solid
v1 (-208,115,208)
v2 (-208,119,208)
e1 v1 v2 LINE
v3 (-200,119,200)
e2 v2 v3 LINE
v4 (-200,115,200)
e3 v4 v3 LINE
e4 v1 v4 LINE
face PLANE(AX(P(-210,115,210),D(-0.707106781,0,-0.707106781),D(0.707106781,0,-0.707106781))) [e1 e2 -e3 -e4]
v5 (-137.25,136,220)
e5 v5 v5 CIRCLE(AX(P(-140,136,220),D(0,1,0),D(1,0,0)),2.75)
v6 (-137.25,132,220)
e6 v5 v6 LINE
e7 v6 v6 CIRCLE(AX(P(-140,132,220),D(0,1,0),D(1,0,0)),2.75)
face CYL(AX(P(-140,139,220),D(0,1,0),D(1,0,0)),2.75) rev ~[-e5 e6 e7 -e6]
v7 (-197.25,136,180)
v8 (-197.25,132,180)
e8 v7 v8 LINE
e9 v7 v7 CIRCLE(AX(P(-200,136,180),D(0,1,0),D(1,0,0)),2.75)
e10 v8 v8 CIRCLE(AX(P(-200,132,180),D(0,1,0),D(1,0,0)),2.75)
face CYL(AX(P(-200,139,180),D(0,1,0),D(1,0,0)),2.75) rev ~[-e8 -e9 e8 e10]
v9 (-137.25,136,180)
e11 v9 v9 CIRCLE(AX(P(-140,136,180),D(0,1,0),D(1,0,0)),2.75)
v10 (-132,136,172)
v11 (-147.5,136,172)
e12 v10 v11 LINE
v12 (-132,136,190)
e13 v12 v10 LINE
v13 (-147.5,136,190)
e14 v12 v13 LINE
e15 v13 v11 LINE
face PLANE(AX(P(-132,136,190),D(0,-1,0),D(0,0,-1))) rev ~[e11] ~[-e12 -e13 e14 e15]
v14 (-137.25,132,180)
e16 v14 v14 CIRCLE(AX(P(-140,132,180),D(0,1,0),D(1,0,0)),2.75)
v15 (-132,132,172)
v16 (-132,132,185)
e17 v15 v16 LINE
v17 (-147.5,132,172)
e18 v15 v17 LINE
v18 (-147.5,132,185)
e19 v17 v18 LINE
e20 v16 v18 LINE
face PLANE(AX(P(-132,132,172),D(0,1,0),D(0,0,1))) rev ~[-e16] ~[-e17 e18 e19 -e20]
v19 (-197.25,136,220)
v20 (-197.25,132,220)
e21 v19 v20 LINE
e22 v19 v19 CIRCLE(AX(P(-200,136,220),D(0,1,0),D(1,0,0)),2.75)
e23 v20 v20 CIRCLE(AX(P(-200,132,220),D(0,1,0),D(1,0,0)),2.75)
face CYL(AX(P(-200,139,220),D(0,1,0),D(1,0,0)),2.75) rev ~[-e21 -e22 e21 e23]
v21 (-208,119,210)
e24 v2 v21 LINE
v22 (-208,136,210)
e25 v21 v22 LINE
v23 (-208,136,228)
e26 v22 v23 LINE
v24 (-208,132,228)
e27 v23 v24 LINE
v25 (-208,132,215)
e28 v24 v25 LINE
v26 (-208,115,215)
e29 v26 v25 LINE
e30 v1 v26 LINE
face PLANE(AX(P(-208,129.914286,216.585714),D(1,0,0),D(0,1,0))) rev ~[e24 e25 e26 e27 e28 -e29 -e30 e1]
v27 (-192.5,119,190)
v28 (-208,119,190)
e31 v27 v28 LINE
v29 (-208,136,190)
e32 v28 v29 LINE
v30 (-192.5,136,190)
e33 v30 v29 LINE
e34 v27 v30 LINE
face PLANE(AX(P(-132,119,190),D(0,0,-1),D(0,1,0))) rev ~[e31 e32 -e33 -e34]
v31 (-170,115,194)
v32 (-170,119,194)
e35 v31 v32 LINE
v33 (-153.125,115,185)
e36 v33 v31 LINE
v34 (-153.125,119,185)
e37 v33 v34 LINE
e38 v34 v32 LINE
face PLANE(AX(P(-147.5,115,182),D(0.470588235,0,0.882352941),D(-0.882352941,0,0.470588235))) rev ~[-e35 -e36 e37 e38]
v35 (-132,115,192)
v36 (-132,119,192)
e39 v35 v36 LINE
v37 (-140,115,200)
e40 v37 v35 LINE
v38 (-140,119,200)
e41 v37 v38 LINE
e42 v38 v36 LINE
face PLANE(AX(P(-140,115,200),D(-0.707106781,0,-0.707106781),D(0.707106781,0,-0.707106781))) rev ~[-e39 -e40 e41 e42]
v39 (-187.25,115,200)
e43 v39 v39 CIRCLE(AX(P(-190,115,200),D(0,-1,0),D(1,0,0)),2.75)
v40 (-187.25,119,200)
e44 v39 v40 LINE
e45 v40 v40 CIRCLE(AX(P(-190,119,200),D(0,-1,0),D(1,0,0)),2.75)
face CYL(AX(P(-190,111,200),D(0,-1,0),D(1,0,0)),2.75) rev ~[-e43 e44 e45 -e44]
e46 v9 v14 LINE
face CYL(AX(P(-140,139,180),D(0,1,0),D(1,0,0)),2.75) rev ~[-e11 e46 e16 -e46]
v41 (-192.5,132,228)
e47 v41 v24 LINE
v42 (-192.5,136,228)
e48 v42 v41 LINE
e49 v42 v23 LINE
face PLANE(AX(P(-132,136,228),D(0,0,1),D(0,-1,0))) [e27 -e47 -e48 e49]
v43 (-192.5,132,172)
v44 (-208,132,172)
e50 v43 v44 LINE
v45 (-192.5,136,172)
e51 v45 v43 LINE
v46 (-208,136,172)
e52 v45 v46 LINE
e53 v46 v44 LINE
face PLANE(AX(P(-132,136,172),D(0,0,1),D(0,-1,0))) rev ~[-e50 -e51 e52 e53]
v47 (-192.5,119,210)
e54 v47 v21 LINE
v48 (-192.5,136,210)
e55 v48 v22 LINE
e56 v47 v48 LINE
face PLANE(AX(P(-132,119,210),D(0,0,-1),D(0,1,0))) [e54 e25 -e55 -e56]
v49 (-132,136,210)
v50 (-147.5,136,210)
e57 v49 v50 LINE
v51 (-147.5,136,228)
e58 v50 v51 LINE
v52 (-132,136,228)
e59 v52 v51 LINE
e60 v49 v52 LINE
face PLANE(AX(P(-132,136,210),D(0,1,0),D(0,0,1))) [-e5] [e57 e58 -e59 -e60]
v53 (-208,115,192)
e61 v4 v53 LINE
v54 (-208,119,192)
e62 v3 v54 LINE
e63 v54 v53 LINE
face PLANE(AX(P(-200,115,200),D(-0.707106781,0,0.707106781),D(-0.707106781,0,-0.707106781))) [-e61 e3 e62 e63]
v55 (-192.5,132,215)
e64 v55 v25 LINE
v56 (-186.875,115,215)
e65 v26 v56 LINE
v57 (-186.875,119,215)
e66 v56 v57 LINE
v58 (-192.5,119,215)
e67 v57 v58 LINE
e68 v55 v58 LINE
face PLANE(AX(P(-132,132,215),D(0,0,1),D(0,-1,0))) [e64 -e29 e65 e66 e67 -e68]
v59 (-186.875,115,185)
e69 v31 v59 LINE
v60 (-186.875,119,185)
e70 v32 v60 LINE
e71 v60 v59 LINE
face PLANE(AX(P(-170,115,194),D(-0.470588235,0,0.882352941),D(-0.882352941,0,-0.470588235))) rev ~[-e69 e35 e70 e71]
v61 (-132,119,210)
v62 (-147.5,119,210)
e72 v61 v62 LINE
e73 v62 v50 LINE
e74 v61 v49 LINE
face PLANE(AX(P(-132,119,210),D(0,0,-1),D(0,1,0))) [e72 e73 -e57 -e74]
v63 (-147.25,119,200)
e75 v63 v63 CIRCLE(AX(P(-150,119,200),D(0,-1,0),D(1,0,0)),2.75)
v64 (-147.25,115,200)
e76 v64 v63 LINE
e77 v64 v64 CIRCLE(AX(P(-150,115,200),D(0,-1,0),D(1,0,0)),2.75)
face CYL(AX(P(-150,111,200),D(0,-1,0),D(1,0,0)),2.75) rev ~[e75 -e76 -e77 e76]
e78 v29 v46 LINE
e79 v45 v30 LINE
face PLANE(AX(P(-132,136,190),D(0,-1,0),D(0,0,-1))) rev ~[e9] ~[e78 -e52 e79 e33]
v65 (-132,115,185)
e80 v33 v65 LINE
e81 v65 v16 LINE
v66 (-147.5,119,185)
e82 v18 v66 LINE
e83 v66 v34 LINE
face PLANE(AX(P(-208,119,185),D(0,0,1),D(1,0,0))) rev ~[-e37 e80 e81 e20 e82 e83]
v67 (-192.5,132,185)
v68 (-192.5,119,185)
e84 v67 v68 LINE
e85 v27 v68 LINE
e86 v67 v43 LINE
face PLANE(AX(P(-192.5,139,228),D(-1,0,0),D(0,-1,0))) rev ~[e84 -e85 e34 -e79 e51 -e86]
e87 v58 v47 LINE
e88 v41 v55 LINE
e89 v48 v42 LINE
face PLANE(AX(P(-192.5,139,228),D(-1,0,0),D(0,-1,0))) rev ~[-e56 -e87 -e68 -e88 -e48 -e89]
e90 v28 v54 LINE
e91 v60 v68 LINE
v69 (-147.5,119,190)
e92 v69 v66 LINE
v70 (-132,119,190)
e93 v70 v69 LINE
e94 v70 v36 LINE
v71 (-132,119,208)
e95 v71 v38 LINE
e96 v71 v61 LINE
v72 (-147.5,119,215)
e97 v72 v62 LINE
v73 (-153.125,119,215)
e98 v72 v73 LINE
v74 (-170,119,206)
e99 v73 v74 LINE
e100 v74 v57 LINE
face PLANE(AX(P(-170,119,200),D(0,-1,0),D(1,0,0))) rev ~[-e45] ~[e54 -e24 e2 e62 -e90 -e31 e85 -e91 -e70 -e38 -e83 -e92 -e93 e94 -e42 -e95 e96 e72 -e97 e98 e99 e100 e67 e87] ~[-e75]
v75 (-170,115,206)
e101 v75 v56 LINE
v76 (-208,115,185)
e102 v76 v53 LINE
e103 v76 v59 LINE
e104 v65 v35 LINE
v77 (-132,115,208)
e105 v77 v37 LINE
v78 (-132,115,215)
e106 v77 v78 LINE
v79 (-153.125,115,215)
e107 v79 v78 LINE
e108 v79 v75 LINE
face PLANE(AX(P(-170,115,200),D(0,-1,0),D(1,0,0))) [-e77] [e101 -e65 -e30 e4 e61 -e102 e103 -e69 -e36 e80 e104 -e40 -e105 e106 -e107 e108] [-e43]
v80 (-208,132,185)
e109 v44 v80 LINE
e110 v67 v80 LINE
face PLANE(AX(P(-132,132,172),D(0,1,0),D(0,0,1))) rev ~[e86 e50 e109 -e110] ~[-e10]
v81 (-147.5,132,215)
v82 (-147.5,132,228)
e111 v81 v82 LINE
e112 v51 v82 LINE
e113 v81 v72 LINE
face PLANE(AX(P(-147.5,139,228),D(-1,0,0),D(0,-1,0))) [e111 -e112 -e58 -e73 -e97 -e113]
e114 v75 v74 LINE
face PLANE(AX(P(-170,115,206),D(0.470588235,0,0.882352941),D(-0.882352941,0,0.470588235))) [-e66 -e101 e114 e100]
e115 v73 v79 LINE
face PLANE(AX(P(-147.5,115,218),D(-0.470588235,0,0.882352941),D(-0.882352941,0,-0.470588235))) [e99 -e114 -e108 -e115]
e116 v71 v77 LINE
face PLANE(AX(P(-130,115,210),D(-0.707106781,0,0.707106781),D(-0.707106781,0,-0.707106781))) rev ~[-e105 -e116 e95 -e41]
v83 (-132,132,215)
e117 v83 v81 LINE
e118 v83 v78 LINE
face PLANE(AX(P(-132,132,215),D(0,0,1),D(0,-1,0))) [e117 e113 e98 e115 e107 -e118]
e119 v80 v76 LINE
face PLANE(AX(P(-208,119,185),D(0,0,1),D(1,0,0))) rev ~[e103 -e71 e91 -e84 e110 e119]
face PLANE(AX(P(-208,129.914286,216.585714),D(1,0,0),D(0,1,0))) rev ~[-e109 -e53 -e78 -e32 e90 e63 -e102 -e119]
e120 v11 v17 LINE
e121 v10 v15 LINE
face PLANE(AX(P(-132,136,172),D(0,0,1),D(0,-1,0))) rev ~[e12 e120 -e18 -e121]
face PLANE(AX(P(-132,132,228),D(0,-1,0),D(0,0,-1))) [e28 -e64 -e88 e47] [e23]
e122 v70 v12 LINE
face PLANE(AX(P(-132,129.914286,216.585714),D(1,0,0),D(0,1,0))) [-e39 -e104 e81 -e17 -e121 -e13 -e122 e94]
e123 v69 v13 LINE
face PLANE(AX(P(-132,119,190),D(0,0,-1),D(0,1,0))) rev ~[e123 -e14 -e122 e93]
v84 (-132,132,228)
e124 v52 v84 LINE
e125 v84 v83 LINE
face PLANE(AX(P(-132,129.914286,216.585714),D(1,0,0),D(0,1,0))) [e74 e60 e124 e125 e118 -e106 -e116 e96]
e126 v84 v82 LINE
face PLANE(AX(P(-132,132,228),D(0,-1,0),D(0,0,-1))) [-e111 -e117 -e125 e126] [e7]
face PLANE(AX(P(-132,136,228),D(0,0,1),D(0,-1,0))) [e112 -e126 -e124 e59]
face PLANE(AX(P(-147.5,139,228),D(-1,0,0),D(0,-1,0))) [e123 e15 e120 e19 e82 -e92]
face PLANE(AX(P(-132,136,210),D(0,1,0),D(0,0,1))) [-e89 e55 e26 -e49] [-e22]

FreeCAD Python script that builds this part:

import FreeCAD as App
import Part
import Sketcher
from FreeCAD import Vector
Q = App.Units.Quantity

doc = App.newDocument("Part")
body = doc.addObject("PartDesign::Body", "Body")

sketch1 = doc.addObject("Sketcher::SketchObject", "Sketch")
body.addObject(sketch1)
sketch1.AttachmentSupport = (doc.XZ_Plane, [""])
sketch1.MapMode = "FlatFace"
sketch1.addGeometry(Part.LineSegment(Vector(-208, 215, 0), Vector(-208, 185, 0)), False)
sketch1.addGeometry(Part.LineSegment(Vector(-208, 185, 0), Vector(-132, 185, 0)), False)
sketch1.addGeometry(Part.LineSegment(Vector(-132, 185, 0), Vector(-132, 215, 0)), False)
sketch1.addGeometry(Part.LineSegment(Vector(-132, 215, 0), Vector(-208, 215, 0)), False)
sketch1.addConstraint(Sketcher.Constraint("Coincident", 0, 2, 1, 1))
sketch1.addConstraint(Sketcher.Constraint("Coincident", 1, 2, 2, 1))
sketch1.addConstraint(Sketcher.Constraint("Coincident", 2, 2, 3, 1))
sketch1.addConstraint(Sketcher.Constraint("Coincident", 3, 2, 0, 1))
sketch1.addConstraint(Sketcher.Constraint("Vertical", 0))
sketch1.addConstraint(Sketcher.Constraint("Horizontal", 1))
sketch1.addConstraint(Sketcher.Constraint("Vertical", 2))
sketch1.addConstraint(Sketcher.Constraint("Horizontal", 3))
sketch1.addConstraint(Sketcher.Constraint("DistanceX", 1, 1, 1, 2, Q("76 mm")))
sketch1.addConstraint(Sketcher.Constraint("DistanceY", 0, 2, 0, 1, Q("30 mm")))
sketch1.addConstraint(Sketcher.Constraint("DistanceX", 0, 2, -1, 1, Q("208 mm")))
sketch1.addConstraint(Sketcher.Constraint("DistanceY", -1, 1, 0, 2, Q("185 mm")))
pad1 = doc.addObject("PartDesign::Pad", "Pad")
body.addObject(pad1)
pad1.Profile = sketch1
pad1.Length = 4

sketch2 = doc.addObject("Sketcher::SketchObject", "Sketch001")
body.addObject(sketch2)
sketch2.AttachmentSupport = (doc.YZ_Plane, [""])
sketch2.MapMode = "FlatFace"
sketch2.AttachmentOffset = App.Placement(Vector(0, 0, -132), App.Rotation())
sketch2.addGeometry(Part.LineSegment(Vector(0, 215, 0), Vector(0, 210, 0)), False)
sketch2.addGeometry(Part.LineSegment(Vector(0, 210, 0), Vector(17, 210, 0)), False)
sketch2.addGeometry(Part.LineSegment(Vector(17, 210, 0), Vector(17, 228, 0)), False)
sketch2.addGeometry(Part.LineSegment(Vector(17, 228, 0), Vector(13, 228, 0)), False)
sketch2.addGeometry(Part.LineSegment(Vector(13, 228, 0), Vector(13, 215, 0)), False)
sketch2.addGeometry(Part.LineSegment(Vector(13, 215, 0), Vector(0, 215, 0)), False)
sketch2.addGeometry(Part.LineSegment(Vector(17, 190, 0), Vector(0, 190, 0)), False)
sketch2.addGeometry(Part.LineSegment(Vector(0, 190, 0), Vector(0, 185, 0)), False)
sketch2.addGeometry(Part.LineSegment(Vector(0, 185, 0), Vector(13, 185, 0)), False)
sketch2.addGeometry(Part.LineSegment(Vector(13, 185, 0), Vector(13, 172, 0)), False)
sketch2.addGeometry(Part.LineSegment(Vector(13, 172, 0), Vector(17, 172, 0)), False)
sketch2.addGeometry(Part.LineSegment(Vector(17, 172, 0), Vector(17, 190, 0)), False)
sketch2.addConstraint(Sketcher.Constraint("Coincident", 0, 2, 1, 1))
sketch2.addConstraint(Sketcher.Constraint("Coincident", 1, 2, 2, 1))
sketch2.addConstraint(Sketcher.Constraint("Coincident", 2, 2, 3, 1))
sketch2.addConstraint(Sketcher.Constraint("Coincident", 3, 2, 4, 1))
sketch2.addConstraint(Sketcher.Constraint("Coincident", 4, 2, 5, 1))
sketch2.addConstraint(Sketcher.Constraint("Coincident", 5, 2, 0, 1))
sketch2.addConstraint(Sketcher.Constraint("Coincident", 6, 2, 7, 1))
sketch2.addConstraint(Sketcher.Constraint("Coincident", 7, 2, 8, 1))
sketch2.addConstraint(Sketcher.Constraint("Coincident", 8, 2, 9, 1))
sketch2.addConstraint(Sketcher.Constraint("Coincident", 9, 2, 10, 1))
sketch2.addConstraint(Sketcher.Constraint("Coincident", 10, 2, 11, 1))
sketch2.addConstraint(Sketcher.Constraint("Coincident", 11, 2, 6, 1))
sketch2.addConstraint(Sketcher.Constraint("Vertical", 0))
sketch2.addConstraint(Sketcher.Constraint("Horizontal", 1))
sketch2.addConstraint(Sketcher.Constraint("Vertical", 2))
sketch2.addConstraint(Sketcher.Constraint("Horizontal", 3))
sketch2.addConstraint(Sketcher.Constraint("Vertical", 4))
sketch2.addConstraint(Sketcher.Constraint("Horizontal", 5))
sketch2.addConstraint(Sketcher.Constraint("Horizontal", 6))
sketch2.addConstraint(Sketcher.Constraint("Vertical", 7))
sketch2.addConstraint(Sketcher.Constraint("Horizontal", 8))
sketch2.addConstraint(Sketcher.Constraint("Vertical", 9))
sketch2.addConstraint(Sketcher.Constraint("Horizontal", 10))
sketch2.addConstraint(Sketcher.Constraint("Vertical", 11))
sketch2.addConstraint(Sketcher.Constraint("PointOnObject", 0, 2, -2))
sketch2.addConstraint(Sketcher.Constraint("PointOnObject", 6, 2, -2))
sketch2.addConstraint(Sketcher.Constraint("Vertical", 4, 2, 8, 2))
sketch2.addConstraint(Sketcher.Constraint("Vertical", 2, 2, 10, 2))
sketch2.addConstraint(Sketcher.Constraint("Equal", 8, 4))
sketch2.addConstraint(Sketcher.Constraint("Equal", 0, 7))
sketch2.addConstraint(Sketcher.Constraint("Equal", 4, 9))
sketch2.addConstraint(Sketcher.Constraint("DistanceX", 1, 1, 1, 2, Q("17 mm")))
sketch2.addConstraint(Sketcher.Constraint("DistanceX", 3, 2, 3, 1, Q("4 mm")))
sketch2.addConstraint(Sketcher.Constraint("DistanceY", 0, 2, 0, 1, Q("5 mm")))
sketch2.addConstraint(Sketcher.Constraint("DistanceY", -1, 1, 0, 2, Q("210 mm")))
sketch2.addConstraint(Sketcher.Constraint("DistanceY", -1, 1, 6, 2, Q("190 mm")))
pad2 = doc.addObject("PartDesign::Pad", "Pad001")
body.addObject(pad2)
pad2.Profile = sketch2
pad2.Length = 76
pad2.Reversed = True

sketch3 = doc.addObject("Sketcher::SketchObject", "Sketch002")
body.addObject(sketch3)
sketch3.AttachmentSupport = (doc.XZ_Plane, [""])
sketch3.MapMode = "FlatFace"
sketch3.AttachmentOffset = App.Placement(Vector(0, 0, -20), App.Rotation())
sketch3.addGeometry(Part.Circle(Vector(-200, 220, 0), Vector(0, 0, 1), 2.8), False)
sketch3.addGeometry(Part.Circle(Vector(-200, 180, 0), Vector(0, 0, 1), 2.8), False)
sketch3.addGeometry(Part.Circle(Vector(-140, 180, 0), Vector(0, 0, 1), 2.8), False)
sketch3.addGeometry(Part.Circle(Vector(-140, 220, 0), Vector(0, 0, 1), 2.8), False)
sketch3.addConstraint(Sketcher.Constraint("Equal", 0, 1))
sketch3.addConstraint(Sketcher.Constraint("Equal", 1, 2))
sketch3.addConstraint(Sketcher.Constraint("Equal", 2, 3))
sketch3.addConstraint(Sketcher.Constraint("Horizontal", 1, 3, 2, 3))
sketch3.addConstraint(Sketcher.Constraint("Horizontal", 0, 3, 3, 3))
sketch3.addConstraint(Sketcher.Constraint("Vertical", 0, 3, 1, 3))
sketch3.addConstraint(Sketcher.Constraint("Vertical", 2, 3, 3, 3))
sketch3.addConstraint(Sketcher.Constraint("Diameter", 0, Q("5.5 mm")))
sketch3.addConstraint(Sketcher.Constraint("DistanceX", 0, 3, -1, 1, Q("200 mm")))
sketch3.addConstraint(Sketcher.Constraint("DistanceY", -1, 1, 0, 3, Q("220 mm")))
sketch3.addConstraint(Sketcher.Constraint("DistanceY", -1, 1, 1, 3, Q("180 mm")))
sketch3.addConstraint(Sketcher.Constraint("DistanceX", 2, 3, -1, 1, Q("140 mm")))
pocket1 = doc.addObject("PartDesign::Pocket", "Pocket")
body.addObject(pocket1)
pocket1.Profile = sketch3
pocket1.Type = "ThroughAll"
pocket1.Reversed = True

sketch4 = doc.addObject("Sketcher::SketchObject", "Sketch003")
body.addObject(sketch4)
sketch4.AttachmentSupport = (doc.XZ_Plane, [""])
sketch4.MapMode = "FlatFace"
sketch4.AttachmentOffset = App.Placement(Vector(0, 0, 8), App.Rotation())
sketch4.addGeometry(Part.Circle(Vector(-190, 200, 0), Vector(0, 0, 1), 2.8), False)
sketch4.addGeometry(Part.Circle(Vector(-150, 200, 0), Vector(0, 0, 1), 2.8), False)
sketch4.addConstraint(Sketcher.Constraint("Equal", 0, 1))
sketch4.addConstraint(Sketcher.Constraint("Horizontal", 0, 3, 1, 3))
sketch4.addConstraint(Sketcher.Constraint("Diameter", 0, Q("5.5 mm")))
sketch4.addConstraint(Sketcher.Constraint("DistanceX", 0, 3, -1, 1, Q("190 mm")))
sketch4.addConstraint(Sketcher.Constraint("DistanceY", -1, 1, 0, 3, Q("200 mm")))
sketch4.addConstraint(Sketcher.Constraint("DistanceX", 1, 3, -1, 1, Q("150 mm")))
pocket2 = doc.addObject("PartDesign::Pocket", "Pocket001")
body.addObject(pocket2)
pocket2.Profile = sketch4
pocket2.Type = "ThroughAll"

sketch5 = doc.addObject("Sketcher::SketchObject", "Sketch004")
body.addObject(sketch5)
sketch5.AttachmentSupport = (doc.XY_Plane, [""])
sketch5.MapMode = "FlatFace"
sketch5.AttachmentOffset = App.Placement(Vector(0, 0, 228), App.Rotation())
sketch5.addGeometry(Part.LineSegment(Vector(-148, 0, 0), Vector(-148, 20, 0)), False)
sketch5.addGeometry(Part.LineSegment(Vector(-148, 20, 0), Vector(-192, 20, 0)), False)
sketch5.addGeometry(Part.LineSegment(Vector(-192, 20, 0), Vector(-192, 0, 0)), False)
sketch5.addGeometry(Part.LineSegment(Vector(-192, 0, 0), Vector(-148, 0, 0)), False)
sketch5.addConstraint(Sketcher.Constraint("Coincident", 0, 2, 1, 1))
sketch5.addConstraint(Sketcher.Constraint("Coincident", 1, 2, 2, 1))
sketch5.addConstraint(Sketcher.Constraint("Coincident", 2, 2, 3, 1))
sketch5.addConstraint(Sketcher.Constraint("Coincident", 3, 2, 0, 1))
sketch5.addConstraint(Sketcher.Constraint("Vertical", 0))
sketch5.addConstraint(Sketcher.Constraint("Horizontal", 1))
sketch5.addConstraint(Sketcher.Constraint("Vertical", 2))
sketch5.addConstraint(Sketcher.Constraint("Horizontal", 3))
sketch5.addConstraint(Sketcher.Constraint("PointOnObject", 2, 2, -1))
sketch5.addConstraint(Sketcher.Constraint("DistanceX", 1, 2, 1, 1, Q("45 mm")))
sketch5.addConstraint(Sketcher.Constraint("DistanceY", 0, 1, 0, 2, Q("20 mm")))
sketch5.addConstraint(Sketcher.Constraint("DistanceX", 0, 2, -1, 1, Q("147.5 mm")))
pocket3 = doc.addObject("PartDesign::Pocket", "Pocket002")
body.addObject(pocket3)
pocket3.Profile = sketch5
pocket3.Type = "ThroughAll"

sketch6 = doc.addObject("Sketcher::SketchObject", "Sketch005")
body.addObject(sketch6)
sketch6.AttachmentSupport = (doc.XZ_Plane, [""])
sketch6.MapMode = "FlatFace"
sketch6.AttachmentOffset = App.Placement(Vector(0, 0, 4), App.Rotation())
sketch6.addGeometry(Part.LineSegment(Vector(-200, 200, 0), Vector(-210, 210, 0)), False)
sketch6.addGeometry(Part.LineSegment(Vector(-210, 210, 0), Vector(-210, 190, 0)), False)
sketch6.addGeometry(Part.LineSegment(Vector(-210, 190, 0), Vector(-200, 200, 0)), False)
sketch6.addGeometry(Part.LineSegment(Vector(-130, 210, 0), Vector(-140, 200, 0)), False)
sketch6.addGeometry(Part.LineSegment(Vector(-140, 200, 0), Vector(-130, 190, 0)), False)
sketch6.addGeometry(Part.LineSegment(Vector(-130, 190, 0), Vector(-130, 210, 0)), False)
sketch6.addGeometry(Part.LineSegment(Vector(-148, 218, 0), Vector(-192, 218, 0)), False)
sketch6.addGeometry(Part.LineSegment(Vector(-192, 218, 0), Vector(-170, 206, 0)), False)
sketch6.addGeometry(Part.LineSegment(Vector(-170, 206, 0), Vector(-148, 218, 0)), False)
sketch6.addGeometry(Part.LineSegment(Vector(-192, 182, 0), Vector(-148, 182, 0)), False)
sketch6.addGeometry(Part.LineSegment(Vector(-148, 182, 0), Vector(-170, 194, 0)), False)
sketch6.addGeometry(Part.LineSegment(Vector(-170, 194, 0), Vector(-192, 182, 0)), False)
sketch6.addConstraint(Sketcher.Constraint("Coincident", 0, 2, 1, 1))
sketch6.addConstraint(Sketcher.Constraint("Coincident", 1, 2, 2, 1))
sketch6.addConstraint(Sketcher.Constraint("Coincident", 2, 2, 0, 1))
sketch6.addConstraint(Sketcher.Constraint("Coincident", 3, 2, 4, 1))
sketch6.addConstraint(Sketcher.Constraint("Coincident", 4, 2, 5, 1))
sketch6.addConstraint(Sketcher.Constraint("Coincident", 5, 2, 3, 1))
sketch6.addConstraint(Sketcher.Constraint("Coincident", 6, 2, 7, 1))
sketch6.addConstraint(Sketcher.Constraint("Coincident", 7, 2, 8, 1))
sketch6.addConstraint(Sketcher.Constraint("Coincident", 8, 2, 6, 1))
sketch6.addConstraint(Sketcher.Constraint("Coincident", 9, 2, 10, 1))
sketch6.addConstraint(Sketcher.Constraint("Coincident", 10, 2, 11, 1))
sketch6.addConstraint(Sketcher.Constraint("Coincident", 11, 2, 9, 1))
sketch6.addConstraint(Sketcher.Constraint("Vertical", 1))
sketch6.addConstraint(Sketcher.Constraint("Vertical", 5))
sketch6.addConstraint(Sketcher.Constraint("Horizontal", 6))
sketch6.addConstraint(Sketcher.Constraint("Horizontal", 9))
sketch6.addConstraint(Sketcher.Constraint("Perpendicular", 0, 2))
sketch6.addConstraint(Sketcher.Constraint("Parallel", 2, 3))
sketch6.addConstraint(Sketcher.Constraint("Perpendicular", 3, 4))
sketch6.addConstraint(Sketcher.Constraint("Parallel", 7, 10))
sketch6.addConstraint(Sketcher.Constraint("Parallel", 8, 11))
sketch6.addConstraint(Sketcher.Constraint("Horizontal", 2, 2, 3, 2))
sketch6.addConstraint(Sketcher.Constraint("Horizontal", 1, 2, 4, 2))
sketch6.addConstraint(Sketcher.Constraint("Horizontal", 0, 2, 5, 2))
sketch6.addConstraint(Sketcher.Constraint("Vertical", 8, 2, 9, 2))
sketch6.addConstraint(Sketcher.Constraint("Vertical", 7, 2, 10, 2))
sketch6.addConstraint(Sketcher.Constraint("Vertical", 6, 2, 11, 2))
sketch6.addConstraint(Sketcher.Constraint("DistanceX", 6, 2, 6, 1, Q("45 mm")))
sketch6.addConstraint(Sketcher.Constraint("DistanceY", 1, 2, 1, 1, Q("20 mm")))
sketch6.addConstraint(Sketcher.Constraint("DistanceX", 0, 2, -1, 1, Q("210 mm")))
sketch6.addConstraint(Sketcher.Constraint("DistanceY", -1, 1, 0, 2, Q("210 mm")))
sketch6.addConstraint(Sketcher.Constraint("DistanceX", 3, 2, -1, 1, Q("140 mm")))
sketch6.addConstraint(Sketcher.Constraint("DistanceY", -1, 1, 6, 2, Q("218 mm")))
sketch6.addConstraint(Sketcher.Constraint("DistanceX", 7, 2, -1, 1, Q("170 mm")))
sketch6.addConstraint(Sketcher.Constraint("DistanceY", -1, 1, 7, 2, Q("206 mm")))
sketch6.addConstraint(Sketcher.Constraint("DistanceY", -1, 1, 9, 2, Q("182 mm")))
pocket4 = doc.addObject("PartDesign::Pocket", "Pocket003")
body.addObject(pocket4)
pocket4.Profile = sketch6
pocket4.Type = "ThroughAll"
body2 = doc.addObject("PartDesign::Body", "Body001")
doc.recompute()

body.Placement = App.Placement(Vector(0, 119, 0), App.Rotation(Vector(0, 0, 1), 0))
boolean = doc.addObject("PartDesign::Boolean", "Boolean")
body2.addObject(boolean)
boolean.Type = "Fuse"
boolean.addObjects([body])

doc.recompute()
